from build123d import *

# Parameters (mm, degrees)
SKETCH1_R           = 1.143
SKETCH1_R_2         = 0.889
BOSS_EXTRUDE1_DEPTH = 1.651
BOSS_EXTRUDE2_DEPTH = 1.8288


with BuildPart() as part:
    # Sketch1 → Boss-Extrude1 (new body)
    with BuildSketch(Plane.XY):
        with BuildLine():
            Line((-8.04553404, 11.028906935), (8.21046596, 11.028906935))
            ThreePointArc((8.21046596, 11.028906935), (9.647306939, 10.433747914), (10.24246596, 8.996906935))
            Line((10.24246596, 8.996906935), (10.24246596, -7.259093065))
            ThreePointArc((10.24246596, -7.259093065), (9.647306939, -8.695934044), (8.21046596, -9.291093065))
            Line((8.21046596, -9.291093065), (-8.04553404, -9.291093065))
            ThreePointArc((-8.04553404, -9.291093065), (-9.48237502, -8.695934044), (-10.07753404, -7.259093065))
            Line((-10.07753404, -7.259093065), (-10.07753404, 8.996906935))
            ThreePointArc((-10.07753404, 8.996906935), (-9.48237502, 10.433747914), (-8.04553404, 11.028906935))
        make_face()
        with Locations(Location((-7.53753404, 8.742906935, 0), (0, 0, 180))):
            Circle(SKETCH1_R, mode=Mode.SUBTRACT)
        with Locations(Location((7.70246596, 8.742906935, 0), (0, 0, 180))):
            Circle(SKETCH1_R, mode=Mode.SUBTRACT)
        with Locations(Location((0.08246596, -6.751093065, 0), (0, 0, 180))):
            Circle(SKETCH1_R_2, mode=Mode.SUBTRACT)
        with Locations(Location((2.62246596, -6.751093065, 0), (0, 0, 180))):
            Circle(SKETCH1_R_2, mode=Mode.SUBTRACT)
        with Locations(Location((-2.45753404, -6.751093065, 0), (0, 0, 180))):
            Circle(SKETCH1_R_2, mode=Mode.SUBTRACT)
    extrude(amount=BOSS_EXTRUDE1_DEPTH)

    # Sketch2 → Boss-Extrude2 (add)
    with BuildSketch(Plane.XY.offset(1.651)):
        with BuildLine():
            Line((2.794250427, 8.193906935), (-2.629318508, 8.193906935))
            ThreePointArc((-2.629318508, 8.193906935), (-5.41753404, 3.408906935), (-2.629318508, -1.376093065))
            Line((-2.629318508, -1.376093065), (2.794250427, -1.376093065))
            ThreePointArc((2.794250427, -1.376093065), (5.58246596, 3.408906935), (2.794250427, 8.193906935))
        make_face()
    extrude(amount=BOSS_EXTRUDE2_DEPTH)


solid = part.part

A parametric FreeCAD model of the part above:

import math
import FreeCAD as App
import Part
import Sketcher
Q = App.Units.Quantity

doc = App.newDocument("Part")
body = doc.addObject("PartDesign::Body", "Body")

# Sketch on XY plane
sketch1 = body.newObject("Sketcher::SketchObject", "Sketch")
sketch1.AttachmentSupport = (doc.getObject("XY_Plane"), [""])
sketch1.MapMode = "FlatFace"
sketch1.addGeometry(Part.LineSegment(App.Vector(8.2, 11, 0), App.Vector(-8, 11, 0)), False)
sketch1.addGeometry(Part.ArcOfCircle(Part.Circle(App.Vector(-8, 9, 0), App.Vector(0, 0, 1), 2), math.radians(90), math.radians(180)), False)
sketch1.addGeometry(Part.LineSegment(App.Vector(-10.1, 9, 0), App.Vector(-10.1, -7.3, 0)), False)
sketch1.addGeometry(Part.ArcOfCircle(Part.Circle(App.Vector(-8, -7.3, 0), App.Vector(0, 0, 1), 2), math.radians(180), math.radians(270)), False)
sketch1.addGeometry(Part.LineSegment(App.Vector(-8, -9.3, 0), App.Vector(8.2, -9.3, 0)), False)
sketch1.addGeometry(Part.ArcOfCircle(Part.Circle(App.Vector(8.2, -7.3, 0), App.Vector(0, 0, 1), 2), math.radians(-90), math.radians(0)), False)
sketch1.addGeometry(Part.LineSegment(App.Vector(10.2, -7.3, 0), App.Vector(10.2, 9, 0)), False)
sketch1.addGeometry(Part.ArcOfCircle(Part.Circle(App.Vector(8.2, 9, 0), App.Vector(0, 0, 1), 2), math.radians(0), math.radians(90)), False)
sketch1.addGeometry(Part.Circle(App.Vector(2.6, -6.8, 0), App.Vector(0, 0, 1), 0.9), False)
sketch1.addGeometry(Part.Circle(App.Vector(0.1, -6.8, 0), App.Vector(0, 0, 1), 0.9), False)
sketch1.addGeometry(Part.Circle(App.Vector(-2.5, -6.8, 0), App.Vector(0, 0, 1), 0.9), False)
sketch1.addGeometry(Part.Circle(App.Vector(7.7, 8.7, 0), App.Vector(0, 0, 1), 1.1), False)
sketch1.addGeometry(Part.Circle(App.Vector(-7.5, 8.7, 0), App.Vector(0, 0, 1), 1.1), False)
sketch1.addConstraint(Sketcher.Constraint("Tangent", 0, 2, 1, 1))
sketch1.addConstraint(Sketcher.Constraint("Tangent", 1, 2, 2, 1))
sketch1.addConstraint(Sketcher.Constraint("Tangent", 2, 2, 3, 1))
sketch1.addConstraint(Sketcher.Constraint("Tangent", 3, 2, 4, 1))
sketch1.addConstraint(Sketcher.Constraint("Tangent", 4, 2, 5, 1))
sketch1.addConstraint(Sketcher.Constraint("Tangent", 5, 2, 6, 1))
sketch1.addConstraint(Sketcher.Constraint("Tangent", 6, 2, 7, 1))
sketch1.addConstraint(Sketcher.Constraint("Tangent", 7, 2, 0, 1))
sketch1.addConstraint(Sketcher.Constraint("Horizontal", 0))
sketch1.addConstraint(Sketcher.Constraint("Vertical", 2))
sketch1.addConstraint(Sketcher.Constraint("Horizontal", 4))
sketch1.addConstraint(Sketcher.Constraint("Vertical", 6))
sketch1.addConstraint(Sketcher.Constraint("Equal", 1, 3))
sketch1.addConstraint(Sketcher.Constraint("Equal", 3, 5))
sketch1.addConstraint(Sketcher.Constraint("Equal", 5, 7))
sketch1.addConstraint(Sketcher.Constraint("Equal", 8, 9))
sketch1.addConstraint(Sketcher.Constraint("Equal", 9, 10))
sketch1.addConstraint(Sketcher.Constraint("Equal", 11, 12))
sketch1.addConstraint(Sketcher.Constraint("Horizontal", 8, 3, 9, 3))
sketch1.addConstraint(Sketcher.Constraint("Horizontal", 9, 3, 10, 3))
sketch1.addConstraint(Sketcher.Constraint("Horizontal", 11, 3, 12, 3))
sketch1.addConstraint(Sketcher.Constraint("Equal", 4, 2))
sketch1.addConstraint(Sketcher.Constraint("Diameter", 8, Q("0.07 in")))
sketch1.addConstraint(Sketcher.Constraint("Diameter", 11, Q("0.09 in")))
sketch1.addConstraint(Sketcher.Constraint("Radius", 1, Q("0.08 in")))
sketch1.addConstraint(Sketcher.Constraint("DistanceX", 0, 2, 0, 1, Q("0.64 in")))
sketch1.addConstraint(Sketcher.Constraint("DistanceX", 9, 3, 8, 3, Q("0.1 in")))
sketch1.addConstraint(Sketcher.Constraint("DistanceX", 10, 3, 9, 3, Q("0.1 in")))
sketch1.addConstraint(Sketcher.Constraint("DistanceX", 8, 3, 11, 3, Q("0.2 in")))
sketch1.addConstraint(Sketcher.Constraint("DistanceX", 12, 3, 11, 3, Q("0.6 in")))
sketch1.addConstraint(Sketcher.Constraint("DistanceX", 1, 2, 12, 3, Q("0.1 in")))
sketch1.addConstraint(Sketcher.Constraint("DistanceY", 3, 2, 10, 3, Q("0.1 in")))
sketch1.addConstraint(Sketcher.Constraint("DistanceY", 11, 3, 7, 3, Q("0.01 in")))
sketch1.addConstraint(Sketcher.Constraint("DistanceX", 1, 3, -1, 1, Q("8.045534 mm")))
sketch1.addConstraint(Sketcher.Constraint("DistanceY", -1, 1, 1, 3, Q("8.996907 mm")))
pad1 = body.newObject("PartDesign::Pad", "Pad")
pad1.Profile = sketch1
pad1.Length = Q("0.065 in")

# Sketch on XY plane
sketch2 = body.newObject("Sketcher::SketchObject", "Sketch001")
sketch2.AttachmentSupport = (doc.getObject("XY_Plane"), [""])
sketch2.MapMode = "FlatFace"
sketch2.AttachmentOffset = App.Placement(App.Vector(0, 0, 0.065 * 25.4), App.Rotation())
sketch2.addGeometry(Part.LineSegment(App.Vector(3, 8, 0), App.Vector(-3, 8, 0)), False)
sketch2.addGeometry(Part.ArcOfCircle(Part.Circle(App.Vector(0, 3, 0), App.Vector(0, 0, 1), 6), math.radians(120), math.radians(240)), False)
sketch2.addGeometry(Part.LineSegment(App.Vector(-3, -1, 0), App.Vector(3, -1, 0)), False)
sketch2.addGeometry(Part.ArcOfCircle(Part.Circle(App.Vector(0, 3, 0), App.Vector(0, 0, 1), 5), math.radians(-60), math.radians(60)), False)
sketch2.addConstraint(Sketcher.Constraint("Coincident", 0, 2, 1, 1))
sketch2.addConstraint(Sketcher.Constraint("Coincident", 1, 2, 2, 1))
sketch2.addConstraint(Sketcher.Constraint("Coincident", 2, 2, 3, 1))
sketch2.addConstraint(Sketcher.Constraint("Coincident", 3, 2, 0, 1))
sketch2.addConstraint(Sketcher.Constraint("Horizontal", 0))
sketch2.addConstraint(Sketcher.Constraint("Horizontal", 2))
sketch2.addConstraint(Sketcher.Constraint("Coincident", 3, 3, 1, 3))
sketch2.addConstraint(Sketcher.Constraint("Equal", 1, 3))
sketch2.addConstraint(Sketcher.Constraint("Vertical", 0, 2, 1, 2))
sketch2.addConstraint(Sketcher.Constraint("Radius", 1, Q("5.5 mm")))
sketch2.addConstraint(Sketcher.Constraint("DistanceX", 0, 2, 0, 1, Q("5.423569 mm")))
sketch2.addConstraint(Sketcher.Constraint("DistanceX", 0, 2, -1, 1, Q("2.629319 mm")))
sketch2.addConstraint(Sketcher.Constraint("DistanceY", -1, 1, 1, 3, Q("3.408907 mm")))
pad2 = body.newObject("PartDesign::Pad", "Pad001")
pad2.Profile = sketch2
pad2.Length = Q("0.072 in")

doc.recompute()
